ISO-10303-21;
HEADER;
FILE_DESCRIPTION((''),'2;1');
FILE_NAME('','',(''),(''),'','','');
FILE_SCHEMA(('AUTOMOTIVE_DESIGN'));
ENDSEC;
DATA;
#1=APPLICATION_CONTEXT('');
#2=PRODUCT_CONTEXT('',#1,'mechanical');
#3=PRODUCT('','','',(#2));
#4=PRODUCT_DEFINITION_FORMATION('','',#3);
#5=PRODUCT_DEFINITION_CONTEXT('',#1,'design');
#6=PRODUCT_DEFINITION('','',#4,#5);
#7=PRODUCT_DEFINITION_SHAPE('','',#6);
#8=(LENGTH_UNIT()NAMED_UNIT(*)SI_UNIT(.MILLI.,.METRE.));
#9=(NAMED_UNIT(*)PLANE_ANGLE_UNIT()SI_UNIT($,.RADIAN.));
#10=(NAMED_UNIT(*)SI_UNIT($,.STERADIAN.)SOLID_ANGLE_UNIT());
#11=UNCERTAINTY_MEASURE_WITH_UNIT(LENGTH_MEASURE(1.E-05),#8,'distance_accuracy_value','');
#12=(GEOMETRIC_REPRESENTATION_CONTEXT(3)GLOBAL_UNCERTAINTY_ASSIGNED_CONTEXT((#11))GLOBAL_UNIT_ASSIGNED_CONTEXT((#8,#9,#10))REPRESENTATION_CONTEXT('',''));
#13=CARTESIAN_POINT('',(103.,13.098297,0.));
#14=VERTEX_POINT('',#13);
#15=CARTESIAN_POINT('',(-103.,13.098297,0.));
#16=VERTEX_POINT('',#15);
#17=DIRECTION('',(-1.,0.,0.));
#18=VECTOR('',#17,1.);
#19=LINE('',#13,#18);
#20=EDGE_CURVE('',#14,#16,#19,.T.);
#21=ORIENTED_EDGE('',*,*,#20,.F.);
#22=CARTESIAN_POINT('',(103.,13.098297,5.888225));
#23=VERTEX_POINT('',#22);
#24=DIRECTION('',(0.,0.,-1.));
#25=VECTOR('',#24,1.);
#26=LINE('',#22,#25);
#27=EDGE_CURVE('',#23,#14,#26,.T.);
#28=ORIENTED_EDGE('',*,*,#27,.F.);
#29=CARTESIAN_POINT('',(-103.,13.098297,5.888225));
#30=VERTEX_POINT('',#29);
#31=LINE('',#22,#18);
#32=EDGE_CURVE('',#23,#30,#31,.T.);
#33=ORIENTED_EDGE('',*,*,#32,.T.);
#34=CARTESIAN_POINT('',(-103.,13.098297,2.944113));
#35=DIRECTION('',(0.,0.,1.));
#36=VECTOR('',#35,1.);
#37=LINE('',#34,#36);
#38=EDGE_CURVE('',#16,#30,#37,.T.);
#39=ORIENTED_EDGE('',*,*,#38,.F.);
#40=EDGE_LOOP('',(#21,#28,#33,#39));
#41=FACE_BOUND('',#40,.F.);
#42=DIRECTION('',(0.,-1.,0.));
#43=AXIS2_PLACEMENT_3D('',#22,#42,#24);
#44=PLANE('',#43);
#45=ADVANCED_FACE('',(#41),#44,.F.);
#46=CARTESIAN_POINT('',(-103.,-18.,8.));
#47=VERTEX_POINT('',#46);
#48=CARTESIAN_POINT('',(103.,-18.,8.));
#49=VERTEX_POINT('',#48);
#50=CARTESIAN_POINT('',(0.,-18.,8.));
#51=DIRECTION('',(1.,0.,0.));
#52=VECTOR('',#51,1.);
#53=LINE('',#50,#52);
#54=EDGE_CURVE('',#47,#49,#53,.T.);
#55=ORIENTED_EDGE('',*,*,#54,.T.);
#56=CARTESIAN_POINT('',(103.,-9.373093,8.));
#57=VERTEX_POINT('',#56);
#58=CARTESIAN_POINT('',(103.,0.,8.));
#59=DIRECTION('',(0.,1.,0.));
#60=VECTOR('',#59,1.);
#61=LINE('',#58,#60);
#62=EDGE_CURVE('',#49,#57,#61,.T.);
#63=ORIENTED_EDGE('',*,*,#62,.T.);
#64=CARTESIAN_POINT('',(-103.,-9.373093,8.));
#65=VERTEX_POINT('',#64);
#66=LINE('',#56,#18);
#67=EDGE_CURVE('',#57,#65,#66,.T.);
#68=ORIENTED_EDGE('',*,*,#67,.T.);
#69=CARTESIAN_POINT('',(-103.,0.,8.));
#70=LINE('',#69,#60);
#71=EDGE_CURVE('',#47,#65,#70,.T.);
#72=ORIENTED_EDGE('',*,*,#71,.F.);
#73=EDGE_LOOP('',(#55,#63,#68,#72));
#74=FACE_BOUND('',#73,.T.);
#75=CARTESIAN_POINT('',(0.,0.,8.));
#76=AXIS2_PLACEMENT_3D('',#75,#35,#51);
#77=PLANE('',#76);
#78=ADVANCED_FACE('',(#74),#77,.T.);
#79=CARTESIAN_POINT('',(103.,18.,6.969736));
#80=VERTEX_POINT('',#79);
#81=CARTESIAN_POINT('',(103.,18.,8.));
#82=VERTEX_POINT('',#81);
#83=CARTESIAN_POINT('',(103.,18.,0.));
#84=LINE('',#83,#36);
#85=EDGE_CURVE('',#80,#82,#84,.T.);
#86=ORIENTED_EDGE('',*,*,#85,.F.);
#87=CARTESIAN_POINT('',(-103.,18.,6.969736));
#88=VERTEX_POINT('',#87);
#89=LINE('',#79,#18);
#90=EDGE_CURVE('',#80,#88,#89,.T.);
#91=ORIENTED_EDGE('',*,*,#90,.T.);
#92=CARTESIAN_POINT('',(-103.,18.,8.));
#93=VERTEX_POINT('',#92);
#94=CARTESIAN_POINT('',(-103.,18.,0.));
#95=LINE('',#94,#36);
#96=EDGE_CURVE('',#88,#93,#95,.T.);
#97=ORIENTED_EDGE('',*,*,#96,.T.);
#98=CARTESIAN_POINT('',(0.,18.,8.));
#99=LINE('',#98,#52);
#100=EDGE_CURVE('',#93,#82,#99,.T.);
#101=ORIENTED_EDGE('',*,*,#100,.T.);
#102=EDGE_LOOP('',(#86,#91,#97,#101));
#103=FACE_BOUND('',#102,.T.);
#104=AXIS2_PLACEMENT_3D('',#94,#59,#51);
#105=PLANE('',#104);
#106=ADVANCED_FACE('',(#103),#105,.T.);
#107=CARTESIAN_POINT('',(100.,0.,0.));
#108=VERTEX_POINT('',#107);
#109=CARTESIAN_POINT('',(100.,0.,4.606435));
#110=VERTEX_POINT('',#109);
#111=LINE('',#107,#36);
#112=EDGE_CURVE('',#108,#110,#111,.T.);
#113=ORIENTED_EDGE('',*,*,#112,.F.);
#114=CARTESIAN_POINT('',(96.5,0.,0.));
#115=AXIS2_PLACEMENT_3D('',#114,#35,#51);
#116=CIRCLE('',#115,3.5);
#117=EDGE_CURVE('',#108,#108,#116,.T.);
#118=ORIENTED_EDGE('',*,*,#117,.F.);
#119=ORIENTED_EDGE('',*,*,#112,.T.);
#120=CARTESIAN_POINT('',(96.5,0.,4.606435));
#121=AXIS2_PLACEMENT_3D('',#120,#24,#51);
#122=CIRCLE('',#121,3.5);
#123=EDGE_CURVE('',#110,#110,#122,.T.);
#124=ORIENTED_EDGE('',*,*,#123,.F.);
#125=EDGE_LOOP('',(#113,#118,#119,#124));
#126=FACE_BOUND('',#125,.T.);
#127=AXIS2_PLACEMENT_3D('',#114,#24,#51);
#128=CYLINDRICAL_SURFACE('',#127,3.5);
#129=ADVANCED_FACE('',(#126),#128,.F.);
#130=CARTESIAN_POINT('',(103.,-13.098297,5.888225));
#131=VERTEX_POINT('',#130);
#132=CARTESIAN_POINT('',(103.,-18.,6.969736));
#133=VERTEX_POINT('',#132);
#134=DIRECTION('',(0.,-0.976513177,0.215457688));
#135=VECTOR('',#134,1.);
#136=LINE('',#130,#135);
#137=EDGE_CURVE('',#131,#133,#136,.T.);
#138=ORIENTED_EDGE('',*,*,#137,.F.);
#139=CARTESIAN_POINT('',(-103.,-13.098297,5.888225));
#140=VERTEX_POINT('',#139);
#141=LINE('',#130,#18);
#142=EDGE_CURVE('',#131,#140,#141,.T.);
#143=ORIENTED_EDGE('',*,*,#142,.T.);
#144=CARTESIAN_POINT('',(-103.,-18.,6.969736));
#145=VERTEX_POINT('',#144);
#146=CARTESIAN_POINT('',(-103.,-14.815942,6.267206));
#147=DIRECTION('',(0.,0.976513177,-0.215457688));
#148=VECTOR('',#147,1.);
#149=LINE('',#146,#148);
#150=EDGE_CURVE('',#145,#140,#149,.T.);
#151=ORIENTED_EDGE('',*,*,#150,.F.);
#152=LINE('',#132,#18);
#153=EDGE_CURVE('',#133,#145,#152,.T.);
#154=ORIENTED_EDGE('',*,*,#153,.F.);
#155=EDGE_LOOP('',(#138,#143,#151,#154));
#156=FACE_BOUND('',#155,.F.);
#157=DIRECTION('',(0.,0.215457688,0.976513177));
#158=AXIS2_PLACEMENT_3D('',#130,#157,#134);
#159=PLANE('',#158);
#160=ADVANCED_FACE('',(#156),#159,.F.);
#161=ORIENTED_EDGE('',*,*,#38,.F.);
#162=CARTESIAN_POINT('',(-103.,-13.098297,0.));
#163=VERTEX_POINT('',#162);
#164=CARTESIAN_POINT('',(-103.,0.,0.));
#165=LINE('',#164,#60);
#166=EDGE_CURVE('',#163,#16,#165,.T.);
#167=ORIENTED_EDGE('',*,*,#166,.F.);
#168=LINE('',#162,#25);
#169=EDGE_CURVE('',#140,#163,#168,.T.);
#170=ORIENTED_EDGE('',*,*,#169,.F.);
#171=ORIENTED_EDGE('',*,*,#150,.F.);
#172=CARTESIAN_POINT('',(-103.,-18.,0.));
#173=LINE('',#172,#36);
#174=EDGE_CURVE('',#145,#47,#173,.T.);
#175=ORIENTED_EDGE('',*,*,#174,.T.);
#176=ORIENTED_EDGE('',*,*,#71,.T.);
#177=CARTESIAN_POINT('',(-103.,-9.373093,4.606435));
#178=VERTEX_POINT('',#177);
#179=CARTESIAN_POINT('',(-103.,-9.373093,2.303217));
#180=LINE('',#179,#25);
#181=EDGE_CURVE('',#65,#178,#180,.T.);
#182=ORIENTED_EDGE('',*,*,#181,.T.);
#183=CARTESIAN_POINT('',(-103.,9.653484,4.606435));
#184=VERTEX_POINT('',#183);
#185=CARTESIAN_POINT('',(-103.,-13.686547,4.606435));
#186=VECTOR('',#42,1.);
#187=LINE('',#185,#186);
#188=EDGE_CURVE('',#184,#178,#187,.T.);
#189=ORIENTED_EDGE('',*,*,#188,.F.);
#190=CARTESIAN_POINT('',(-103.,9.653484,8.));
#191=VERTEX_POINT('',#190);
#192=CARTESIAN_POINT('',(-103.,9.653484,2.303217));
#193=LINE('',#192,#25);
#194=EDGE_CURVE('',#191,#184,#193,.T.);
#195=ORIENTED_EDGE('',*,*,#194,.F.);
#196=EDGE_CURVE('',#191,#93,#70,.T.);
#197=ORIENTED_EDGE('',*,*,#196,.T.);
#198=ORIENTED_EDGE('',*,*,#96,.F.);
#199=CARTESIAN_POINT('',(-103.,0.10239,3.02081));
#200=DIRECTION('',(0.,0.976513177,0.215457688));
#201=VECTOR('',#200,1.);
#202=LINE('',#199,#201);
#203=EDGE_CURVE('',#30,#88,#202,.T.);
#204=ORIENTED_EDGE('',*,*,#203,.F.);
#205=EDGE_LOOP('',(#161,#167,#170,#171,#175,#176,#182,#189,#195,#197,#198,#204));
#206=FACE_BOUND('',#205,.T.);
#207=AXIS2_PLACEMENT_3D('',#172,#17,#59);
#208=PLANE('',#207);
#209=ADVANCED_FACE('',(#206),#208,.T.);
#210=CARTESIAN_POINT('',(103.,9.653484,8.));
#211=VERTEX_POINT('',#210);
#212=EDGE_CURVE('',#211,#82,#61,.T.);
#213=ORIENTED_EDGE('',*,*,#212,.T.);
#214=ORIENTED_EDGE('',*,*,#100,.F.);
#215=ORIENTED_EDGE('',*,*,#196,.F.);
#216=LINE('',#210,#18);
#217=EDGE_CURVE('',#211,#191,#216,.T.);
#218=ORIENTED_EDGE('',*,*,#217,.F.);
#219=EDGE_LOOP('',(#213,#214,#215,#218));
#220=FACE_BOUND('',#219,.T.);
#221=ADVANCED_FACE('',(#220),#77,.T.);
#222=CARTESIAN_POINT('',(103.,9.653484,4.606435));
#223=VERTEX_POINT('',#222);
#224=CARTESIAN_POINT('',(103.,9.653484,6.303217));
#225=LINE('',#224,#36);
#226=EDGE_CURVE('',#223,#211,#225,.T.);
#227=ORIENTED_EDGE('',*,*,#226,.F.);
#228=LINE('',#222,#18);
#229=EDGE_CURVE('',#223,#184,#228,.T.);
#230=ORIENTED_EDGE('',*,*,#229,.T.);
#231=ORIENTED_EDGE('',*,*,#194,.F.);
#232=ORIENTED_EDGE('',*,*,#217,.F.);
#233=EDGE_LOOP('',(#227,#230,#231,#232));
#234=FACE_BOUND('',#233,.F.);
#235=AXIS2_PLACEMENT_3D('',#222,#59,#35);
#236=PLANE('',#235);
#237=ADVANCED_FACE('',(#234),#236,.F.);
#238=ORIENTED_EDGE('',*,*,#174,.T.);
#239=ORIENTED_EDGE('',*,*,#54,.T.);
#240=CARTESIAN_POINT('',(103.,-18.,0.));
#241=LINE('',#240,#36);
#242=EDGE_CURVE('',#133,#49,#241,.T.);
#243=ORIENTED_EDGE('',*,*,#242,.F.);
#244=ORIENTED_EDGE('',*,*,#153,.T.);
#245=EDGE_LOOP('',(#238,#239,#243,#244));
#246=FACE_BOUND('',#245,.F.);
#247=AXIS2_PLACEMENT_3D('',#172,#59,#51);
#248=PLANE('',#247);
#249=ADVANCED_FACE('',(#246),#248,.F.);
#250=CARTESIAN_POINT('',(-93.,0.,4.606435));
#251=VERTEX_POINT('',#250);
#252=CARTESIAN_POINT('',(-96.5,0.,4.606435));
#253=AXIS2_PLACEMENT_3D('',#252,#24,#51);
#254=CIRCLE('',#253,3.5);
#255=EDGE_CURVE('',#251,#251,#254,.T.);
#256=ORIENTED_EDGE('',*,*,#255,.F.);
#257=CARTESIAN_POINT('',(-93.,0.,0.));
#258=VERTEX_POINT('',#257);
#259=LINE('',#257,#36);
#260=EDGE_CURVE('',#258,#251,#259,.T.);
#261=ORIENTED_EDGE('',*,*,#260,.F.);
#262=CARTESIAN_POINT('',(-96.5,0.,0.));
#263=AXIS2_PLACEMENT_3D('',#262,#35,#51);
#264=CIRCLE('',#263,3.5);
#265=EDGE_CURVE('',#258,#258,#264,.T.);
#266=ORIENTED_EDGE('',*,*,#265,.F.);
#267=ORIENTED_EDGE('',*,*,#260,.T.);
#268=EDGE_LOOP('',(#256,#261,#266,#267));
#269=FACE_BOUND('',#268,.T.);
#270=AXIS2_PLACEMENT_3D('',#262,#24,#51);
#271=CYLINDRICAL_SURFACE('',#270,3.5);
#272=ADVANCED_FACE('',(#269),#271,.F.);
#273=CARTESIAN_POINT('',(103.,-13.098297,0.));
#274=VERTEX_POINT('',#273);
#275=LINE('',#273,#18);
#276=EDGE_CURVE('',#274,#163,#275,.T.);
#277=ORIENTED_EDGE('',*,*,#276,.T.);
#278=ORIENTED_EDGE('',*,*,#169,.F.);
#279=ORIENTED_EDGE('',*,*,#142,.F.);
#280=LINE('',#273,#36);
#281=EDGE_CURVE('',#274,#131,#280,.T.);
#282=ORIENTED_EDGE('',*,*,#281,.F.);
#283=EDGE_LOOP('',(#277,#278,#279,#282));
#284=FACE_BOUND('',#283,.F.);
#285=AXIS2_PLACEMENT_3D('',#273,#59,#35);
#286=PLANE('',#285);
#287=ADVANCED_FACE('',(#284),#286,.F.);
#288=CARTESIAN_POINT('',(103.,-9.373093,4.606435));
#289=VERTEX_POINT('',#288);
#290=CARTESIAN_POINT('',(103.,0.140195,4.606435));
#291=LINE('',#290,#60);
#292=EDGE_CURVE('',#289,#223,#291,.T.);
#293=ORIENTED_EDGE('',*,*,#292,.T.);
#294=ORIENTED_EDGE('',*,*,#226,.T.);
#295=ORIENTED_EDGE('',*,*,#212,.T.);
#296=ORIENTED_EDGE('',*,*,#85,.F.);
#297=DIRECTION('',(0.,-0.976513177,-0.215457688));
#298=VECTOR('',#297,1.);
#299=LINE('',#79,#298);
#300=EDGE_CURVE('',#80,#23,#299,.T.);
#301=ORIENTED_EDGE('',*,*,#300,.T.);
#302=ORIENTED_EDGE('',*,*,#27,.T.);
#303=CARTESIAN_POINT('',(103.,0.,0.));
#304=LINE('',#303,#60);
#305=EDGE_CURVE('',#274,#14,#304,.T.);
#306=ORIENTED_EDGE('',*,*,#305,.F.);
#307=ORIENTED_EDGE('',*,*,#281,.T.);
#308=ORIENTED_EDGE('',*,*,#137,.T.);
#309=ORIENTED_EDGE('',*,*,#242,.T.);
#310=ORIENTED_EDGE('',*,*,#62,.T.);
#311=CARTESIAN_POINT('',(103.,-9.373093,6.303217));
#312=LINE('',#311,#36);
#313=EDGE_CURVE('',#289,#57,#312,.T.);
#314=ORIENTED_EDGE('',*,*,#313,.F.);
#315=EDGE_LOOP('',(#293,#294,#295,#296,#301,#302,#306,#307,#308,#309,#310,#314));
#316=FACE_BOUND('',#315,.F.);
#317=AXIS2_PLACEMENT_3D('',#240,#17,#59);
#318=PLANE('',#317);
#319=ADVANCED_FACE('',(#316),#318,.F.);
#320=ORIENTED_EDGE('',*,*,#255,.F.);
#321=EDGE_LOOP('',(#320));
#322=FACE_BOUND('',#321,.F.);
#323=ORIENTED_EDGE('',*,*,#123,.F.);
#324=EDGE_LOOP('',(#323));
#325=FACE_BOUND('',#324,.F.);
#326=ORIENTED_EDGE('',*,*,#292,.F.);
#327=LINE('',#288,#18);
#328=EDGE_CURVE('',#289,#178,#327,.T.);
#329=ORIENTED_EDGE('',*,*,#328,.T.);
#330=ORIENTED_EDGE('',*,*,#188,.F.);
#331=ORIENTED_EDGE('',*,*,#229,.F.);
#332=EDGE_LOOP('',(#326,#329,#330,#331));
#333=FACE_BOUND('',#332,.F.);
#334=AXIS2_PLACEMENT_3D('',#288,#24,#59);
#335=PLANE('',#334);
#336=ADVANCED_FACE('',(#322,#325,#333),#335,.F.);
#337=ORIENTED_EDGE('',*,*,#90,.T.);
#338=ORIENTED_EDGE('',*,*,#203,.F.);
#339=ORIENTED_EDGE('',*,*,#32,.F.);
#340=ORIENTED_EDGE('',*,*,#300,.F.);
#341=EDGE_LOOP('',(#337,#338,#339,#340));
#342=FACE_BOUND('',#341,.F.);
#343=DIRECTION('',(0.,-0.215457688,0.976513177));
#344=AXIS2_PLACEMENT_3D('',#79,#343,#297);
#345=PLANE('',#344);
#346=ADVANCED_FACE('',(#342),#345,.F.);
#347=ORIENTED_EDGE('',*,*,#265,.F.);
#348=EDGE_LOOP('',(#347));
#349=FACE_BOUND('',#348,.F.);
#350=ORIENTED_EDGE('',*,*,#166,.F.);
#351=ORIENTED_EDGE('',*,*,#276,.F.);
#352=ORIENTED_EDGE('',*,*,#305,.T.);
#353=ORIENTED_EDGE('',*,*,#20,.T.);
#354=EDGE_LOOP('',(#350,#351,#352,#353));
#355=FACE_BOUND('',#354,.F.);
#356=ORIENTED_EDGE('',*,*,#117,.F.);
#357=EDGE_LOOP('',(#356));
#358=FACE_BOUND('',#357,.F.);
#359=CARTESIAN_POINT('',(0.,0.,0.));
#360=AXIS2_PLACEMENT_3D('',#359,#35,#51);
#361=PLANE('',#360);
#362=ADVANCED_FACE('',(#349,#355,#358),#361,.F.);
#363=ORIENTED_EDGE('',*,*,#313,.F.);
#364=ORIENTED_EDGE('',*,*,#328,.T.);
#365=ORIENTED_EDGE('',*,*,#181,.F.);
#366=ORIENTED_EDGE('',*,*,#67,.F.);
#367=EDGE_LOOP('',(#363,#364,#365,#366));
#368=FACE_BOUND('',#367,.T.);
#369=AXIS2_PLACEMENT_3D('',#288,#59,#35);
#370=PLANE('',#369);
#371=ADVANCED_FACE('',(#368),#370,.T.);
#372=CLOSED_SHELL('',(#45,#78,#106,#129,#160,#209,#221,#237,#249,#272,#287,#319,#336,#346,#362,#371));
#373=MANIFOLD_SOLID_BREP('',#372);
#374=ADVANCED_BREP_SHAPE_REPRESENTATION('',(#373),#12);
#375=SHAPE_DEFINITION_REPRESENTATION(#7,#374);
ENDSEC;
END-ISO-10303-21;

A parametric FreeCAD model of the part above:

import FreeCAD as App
import Part
import Sketcher
Q = App.Units.Quantity


def add_polygon(sketch, points):
    """Adds a closed chain of lines whose ends are joined by coincident constraints."""
    first, n = sketch.GeometryCount, len(points)
    for a, b in zip(points, points[1:] + points[:1]):
        sketch.addGeometry(Part.LineSegment(App.Vector(*a, 0), App.Vector(*b, 0)), False)
    for i in range(n):
        sketch.addConstraint(Sketcher.Constraint("Coincident", first + i, 2, first + (i + 1) % n, 1))

doc = App.newDocument("Part")
body = doc.addObject("PartDesign::Body", "Body")

sketch1 = doc.addObject("Sketcher::SketchObject", "Sketch")
body.addObject(sketch1)
sketch1.AttachmentSupport = (doc.XY_Plane, [""])
sketch1.MapMode = "FlatFace"
add_polygon(sketch1, [(-103, 18), (-103, -18), (103, -18), (103, 18)])
sketch1.addGeometry(Part.Circle(App.Vector(-96.5, 0, 0), App.Vector(0, 0, 1), 3.5), False)
sketch1.addGeometry(Part.Circle(App.Vector(96.5, 0, 0), App.Vector(0, 0, 1), 3.5), False)
sketch1.addConstraint(Sketcher.Constraint("Vertical", 0))
sketch1.addConstraint(Sketcher.Constraint("Horizontal", 1))
sketch1.addConstraint(Sketcher.Constraint("Vertical", 2))
sketch1.addConstraint(Sketcher.Constraint("Horizontal", 3))
sketch1.addConstraint(Sketcher.Constraint("Equal", 4, 5))
sketch1.addConstraint(Sketcher.Constraint("Symmetric", 4, 3, 5, 3, -1, 1))
sketch1.addConstraint(Sketcher.Constraint("Symmetric", 0, 2, 2, 2, -1, 1))
sketch1.addConstraint(Sketcher.Constraint("PointOnObject", 4, 3, -1))
sketch1.addConstraint(Sketcher.Constraint("Diameter", 4, Q("7 mm")))
sketch1.addConstraint(Sketcher.Constraint("DistanceX", 1, 1, 1, 2, Q("206 mm")))
sketch1.addConstraint(Sketcher.Constraint("DistanceY", 0, 2, 0, 1, Q("36 mm")))
sketch1.addConstraint(Sketcher.Constraint("DistanceX", 4, 3, 5, 3, Q("193 mm")))
pad1 = doc.addObject("PartDesign::Pad", "Pad")
body.addObject(pad1)
pad1.Profile = sketch1
pad1.Length = 8

sketch2 = doc.addObject("Sketcher::SketchObject", "Sketch001")
body.addObject(sketch2)
sketch2.AttachmentSupport = (doc.YZ_Plane, [""])
sketch2.MapMode = "FlatFace"
sketch2.AttachmentOffset = App.Placement(App.Vector(0, 0, 103), App.Rotation())
add_polygon(sketch2, [(-9.4, 8), (-9.4, 4.6), (9.7, 4.6), (9.7, 8)])
sketch2.addConstraint(Sketcher.Constraint("Vertical", 0))
sketch2.addConstraint(Sketcher.Constraint("Horizontal", 1))
sketch2.addConstraint(Sketcher.Constraint("Vertical", 2))
sketch2.addConstraint(Sketcher.Constraint("Horizontal", 3))
sketch2.addConstraint(Sketcher.Constraint("DistanceY", -1, 1, 2, 2, Q("8 mm")))
sketch2.addConstraint(Sketcher.Constraint("DistanceX", 1, 1, 1, 2, Q("19.026577 mm")))
sketch2.addConstraint(Sketcher.Constraint("DistanceY", 0, 2, 0, 1, Q("3.393565 mm")))
sketch2.addConstraint(Sketcher.Constraint("DistanceX", 0, 2, -1, 1, Q("9.373093 mm")))
pocket1 = doc.addObject("PartDesign::Pocket", "Pocket")
body.addObject(pocket1)
pocket1.Profile = sketch2
pocket1.Type = "ThroughAll"

sketch3 = doc.addObject("Sketcher::SketchObject", "Sketch002")
body.addObject(sketch3)
sketch3.AttachmentSupport = (doc.YZ_Plane, [""])
sketch3.MapMode = "FlatFace"
sketch3.AttachmentOffset = App.Placement(App.Vector(0, 0, 103), App.Rotation())
add_polygon(sketch3, [(13.1, 5.9), (13.1, 0), (18, 0), (18, 7)])
add_polygon(sketch3, [(-13.1, 5.9), (-18, 7), (-18, 0), (-13.1, 0)])
sketch3.addConstraint(Sketcher.Constraint("Vertical", 0))
sketch3.addConstraint(Sketcher.Constraint("Horizontal", 1))
sketch3.addConstraint(Sketcher.Constraint("Vertical", 2))
sketch3.addConstraint(Sketcher.Constraint("Vertical", 5))
sketch3.addConstraint(Sketcher.Constraint("Horizontal", 6))
sketch3.addConstraint(Sketcher.Constraint("Vertical", 7))
sketch3.addConstraint(Sketcher.Constraint("Symmetric", 1, 2, 5, 2, -1, 1))
sketch3.addConstraint(Sketcher.Constraint("Symmetric", 0, 2, 6, 2, -2))
sketch3.addConstraint(Sketcher.Constraint("Horizontal", 2, 2, 4, 2))
sketch3.addConstraint(Sketcher.Constraint("Horizontal", 3, 2, 7, 2))
sketch3.addConstraint(Sketcher.Constraint("DistanceX", -1, 1, 1, 2, Q("18 mm")))
sketch3.addConstraint(Sketcher.Constraint("DistanceX", 1, 1, 1, 2, Q("4.901703 mm")))
sketch3.addConstraint(Sketcher.Constraint("DistanceY", 0, 2, 0, 1, Q("5.888225 mm")))
sketch3.addConstraint(Sketcher.Constraint("DistanceY", 2, 1, 2, 2, Q("6.969736 mm")))
pocket2 = doc.addObject("PartDesign::Pocket", "Pocket001")
body.addObject(pocket2)
pocket2.Profile = sketch3
pocket2.Type = "ThroughAll"

doc.recompute()
